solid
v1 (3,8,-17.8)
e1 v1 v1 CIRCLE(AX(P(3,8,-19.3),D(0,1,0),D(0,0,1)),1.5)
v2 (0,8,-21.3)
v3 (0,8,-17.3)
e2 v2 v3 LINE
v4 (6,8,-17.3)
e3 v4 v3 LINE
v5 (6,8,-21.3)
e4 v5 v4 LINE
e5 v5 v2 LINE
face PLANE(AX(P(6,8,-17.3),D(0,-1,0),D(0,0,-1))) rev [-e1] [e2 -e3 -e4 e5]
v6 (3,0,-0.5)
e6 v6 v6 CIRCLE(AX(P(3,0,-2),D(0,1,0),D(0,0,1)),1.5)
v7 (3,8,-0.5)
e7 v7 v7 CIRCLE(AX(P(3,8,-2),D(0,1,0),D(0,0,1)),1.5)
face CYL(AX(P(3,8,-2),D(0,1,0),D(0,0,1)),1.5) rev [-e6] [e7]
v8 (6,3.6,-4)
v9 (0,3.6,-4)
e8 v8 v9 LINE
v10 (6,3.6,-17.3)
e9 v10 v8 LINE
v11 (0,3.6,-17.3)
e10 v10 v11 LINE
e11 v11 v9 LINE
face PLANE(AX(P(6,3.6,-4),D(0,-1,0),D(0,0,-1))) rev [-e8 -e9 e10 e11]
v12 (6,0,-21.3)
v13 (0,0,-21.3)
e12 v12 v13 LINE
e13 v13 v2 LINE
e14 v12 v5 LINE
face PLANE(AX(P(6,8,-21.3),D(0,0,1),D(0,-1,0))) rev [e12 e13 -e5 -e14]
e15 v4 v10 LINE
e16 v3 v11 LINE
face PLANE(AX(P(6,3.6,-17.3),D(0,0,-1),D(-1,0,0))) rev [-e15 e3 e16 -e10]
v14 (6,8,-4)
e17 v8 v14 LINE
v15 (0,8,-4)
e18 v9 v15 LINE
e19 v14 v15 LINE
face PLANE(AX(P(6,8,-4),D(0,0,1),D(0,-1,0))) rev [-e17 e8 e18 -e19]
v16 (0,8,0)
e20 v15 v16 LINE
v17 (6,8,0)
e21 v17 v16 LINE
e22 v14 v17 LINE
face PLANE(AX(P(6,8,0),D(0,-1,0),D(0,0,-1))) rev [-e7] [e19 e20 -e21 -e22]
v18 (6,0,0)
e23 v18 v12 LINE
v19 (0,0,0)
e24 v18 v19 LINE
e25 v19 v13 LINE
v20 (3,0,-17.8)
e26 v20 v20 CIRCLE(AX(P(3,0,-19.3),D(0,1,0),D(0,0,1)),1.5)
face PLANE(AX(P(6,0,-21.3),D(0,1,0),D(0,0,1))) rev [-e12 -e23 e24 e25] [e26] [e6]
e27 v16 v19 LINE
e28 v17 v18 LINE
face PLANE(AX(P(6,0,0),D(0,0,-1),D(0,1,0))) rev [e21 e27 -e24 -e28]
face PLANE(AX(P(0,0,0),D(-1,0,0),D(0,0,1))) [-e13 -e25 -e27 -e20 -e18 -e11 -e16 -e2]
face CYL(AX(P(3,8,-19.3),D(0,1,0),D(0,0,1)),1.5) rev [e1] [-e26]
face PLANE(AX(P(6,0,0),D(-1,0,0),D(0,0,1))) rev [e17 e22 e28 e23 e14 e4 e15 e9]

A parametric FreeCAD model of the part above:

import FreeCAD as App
import Part
import Sketcher
Q = App.Units.Quantity

doc = App.newDocument("Part")
body = doc.addObject("PartDesign::Body", "Body")

sketch1 = body.newObject("Sketcher::SketchObject", "Sketch")
sketch1.AttachmentSupport = (doc.getObject("YZ_Plane"), [""])
sketch1.MapMode = "FlatFace"
sketch1.addGeometry(Part.LineSegment(App.Vector(8, 0, 0), App.Vector(0, 0, 0)), False)
sketch1.addGeometry(Part.LineSegment(App.Vector(0, 0, 0), App.Vector(0, -21.3, 0)), False)
sketch1.addGeometry(Part.LineSegment(App.Vector(0, -21.3, 0), App.Vector(8, -21.3, 0)), False)
sketch1.addGeometry(Part.LineSegment(App.Vector(8, -21.3, 0), App.Vector(8, -17.3, 0)), False)
sketch1.addGeometry(Part.LineSegment(App.Vector(8, -17.3, 0), App.Vector(3.6, -17.3, 0)), False)
sketch1.addGeometry(Part.LineSegment(App.Vector(3.6, -17.3, 0), App.Vector(3.6, -4, 0)), False)
sketch1.addGeometry(Part.LineSegment(App.Vector(3.6, -4, 0), App.Vector(8, -4, 0)), False)
sketch1.addGeometry(Part.LineSegment(App.Vector(8, -4, 0), App.Vector(8, 0, 0)), False)
sketch1.addConstraint(Sketcher.Constraint("Coincident", 0, 2, 1, 1))
sketch1.addConstraint(Sketcher.Constraint("Coincident", 1, 2, 2, 1))
sketch1.addConstraint(Sketcher.Constraint("Coincident", 2, 2, 3, 1))
sketch1.addConstraint(Sketcher.Constraint("Coincident", 3, 2, 4, 1))
sketch1.addConstraint(Sketcher.Constraint("Coincident", 4, 2, 5, 1))
sketch1.addConstraint(Sketcher.Constraint("Coincident", 5, 2, 6, 1))
sketch1.addConstraint(Sketcher.Constraint("Coincident", 6, 2, 7, 1))
sketch1.addConstraint(Sketcher.Constraint("Coincident", 7, 2, 0, 1))
sketch1.addConstraint(Sketcher.Constraint("Horizontal", 0))
sketch1.addConstraint(Sketcher.Constraint("Vertical", 1))
sketch1.addConstraint(Sketcher.Constraint("Horizontal", 2))
sketch1.addConstraint(Sketcher.Constraint("Vertical", 3))
sketch1.addConstraint(Sketcher.Constraint("Horizontal", 4))
sketch1.addConstraint(Sketcher.Constraint("Vertical", 5))
sketch1.addConstraint(Sketcher.Constraint("Horizontal", 6))
sketch1.addConstraint(Sketcher.Constraint("Vertical", 7))
sketch1.addConstraint(Sketcher.Constraint("Coincident", 0, 2, -1, 1))
sketch1.addConstraint(Sketcher.Constraint("Vertical", 3, 2, 6, 2))
sketch1.addConstraint(Sketcher.Constraint("Equal", 3, 7))
sketch1.addConstraint(Sketcher.Constraint("DistanceX", 0, 2, 0, 1, Q("8 mm")))
sketch1.addConstraint(Sketcher.Constraint("DistanceY", 3, 1, 3, 2, Q("4 mm")))
sketch1.addConstraint(Sketcher.Constraint("DistanceX", 4, 2, 4, 1, Q("4.4 mm")))
sketch1.addConstraint(Sketcher.Constraint("DistanceY", 1, 2, 1, 1, Q("21.3 mm")))
pad1 = body.newObject("PartDesign::Pad", "Pad")
pad1.Profile = sketch1
pad1.Length = 6

sketch2 = body.newObject("Sketcher::SketchObject", "Sketch001")
sketch2.AttachmentSupport = (doc.getObject("XZ_Plane"), [""])
sketch2.MapMode = "FlatFace"
sketch2.AttachmentOffset = App.Placement(App.Vector(0, 0, -8), App.Rotation())
sketch2.addGeometry(Part.Circle(App.Vector(3, -2, 0), App.Vector(0, 0, 1), 1.5), False)
sketch2.addGeometry(Part.Circle(App.Vector(3, -19.3, 0), App.Vector(0, 0, 1), 1.5), False)
sketch2.addConstraint(Sketcher.Constraint("Equal", 0, 1))
sketch2.addConstraint(Sketcher.Constraint("Vertical", 0, 3, 1, 3))
sketch2.addConstraint(Sketcher.Constraint("Diameter", 0, Q("3 mm")))
sketch2.addConstraint(Sketcher.Constraint("DistanceX", -1, 1, 0, 3, Q("3 mm")))
sketch2.addConstraint(Sketcher.Constraint("DistanceY", 0, 3, -1, 1, Q("2 mm")))
sketch2.addConstraint(Sketcher.Constraint("DistanceY", 1, 3, -1, 1, Q("19.3 mm")))
doc.recompute()
hole = body.newObject("PartDesign::Hole", "Hole")
hole.Profile = sketch2
hole.ThreadType = "None"
hole.Diameter = 3
hole.DepthType = "ThroughAll"
hole.Reversed = True

doc.recompute()
